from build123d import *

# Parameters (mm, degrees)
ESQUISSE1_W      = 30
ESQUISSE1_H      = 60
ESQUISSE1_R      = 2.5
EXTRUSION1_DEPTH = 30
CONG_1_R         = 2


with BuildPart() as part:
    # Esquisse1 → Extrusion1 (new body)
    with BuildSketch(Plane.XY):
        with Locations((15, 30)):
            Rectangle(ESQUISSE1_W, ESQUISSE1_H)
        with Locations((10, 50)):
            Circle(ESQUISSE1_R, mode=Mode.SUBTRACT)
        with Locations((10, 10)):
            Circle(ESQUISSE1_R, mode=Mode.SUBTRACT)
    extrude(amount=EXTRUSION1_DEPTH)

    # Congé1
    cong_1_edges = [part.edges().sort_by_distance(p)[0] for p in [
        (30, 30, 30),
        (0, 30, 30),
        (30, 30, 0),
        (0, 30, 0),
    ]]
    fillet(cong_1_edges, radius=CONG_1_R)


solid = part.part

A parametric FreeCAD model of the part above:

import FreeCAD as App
import Part
import Sketcher
from FreeCAD import Vector
Q = App.Units.Quantity


def edges_at(feature, points):
    """Names of the edges that pass closest to the given points."""
    edges = feature.Shape.Edges
    near = lambda p: min(range(len(edges)), key=lambda i: edges[i].distToShape(Part.Vertex(*p))[0])
    return sorted({f"Edge{near(p) + 1}" for p in points})


def add_polygon(sketch, points):
    """Adds a closed chain of lines whose ends are joined by coincident constraints."""
    first, n = sketch.GeometryCount, len(points)
    for a, b in zip(points, points[1:] + points[:1]):
        sketch.addGeometry(Part.LineSegment(App.Vector(*a, 0), App.Vector(*b, 0)), False)
    for i in range(n):
        sketch.addConstraint(Sketcher.Constraint("Coincident", first + i, 2, first + (i + 1) % n, 1))

doc = App.newDocument("Part")
body = doc.addObject("PartDesign::Body", "Body")

# Sketch on XY plane
sketch1 = doc.addObject("Sketcher::SketchObject", "Sketch")
body.addObject(sketch1)
sketch1.AttachmentSupport = (doc.XY_Plane, [""])
sketch1.MapMode = "FlatFace"
add_polygon(sketch1, [(0, 60), (0, 0), (30, 0), (30, 60)])  # lines 0-3
sketch1.addGeometry(Part.Circle(Vector(10, 10, 0), Vector(0, 0, 1), 2.5), False)  # 4
sketch1.addGeometry(Part.Circle(Vector(10, 50, 0), Vector(0, 0, 1), 2.5), False)  # 5
sketch1.addConstraint([
    Sketcher.Constraint("Vertical", 0),
    Sketcher.Constraint("Horizontal", 1),
    Sketcher.Constraint("Vertical", 2),
    Sketcher.Constraint("Horizontal", 3),
    Sketcher.Constraint("Coincident", 0, 2, -1, 1),
    Sketcher.Constraint("Equal", 4, 5),
    Sketcher.Constraint("Vertical", 4, 3, 5, 3),
    Sketcher.Constraint("Diameter", 4, Q("5 mm")),
    Sketcher.Constraint("DistanceX", 1, 1, 1, 2, Q("30 mm")),
    Sketcher.Constraint("DistanceY", 0, 2, 0, 1, Q("60 mm")),
    Sketcher.Constraint("DistanceX", -1, 1, 4, 3, Q("10 mm")),
    Sketcher.Constraint("DistanceY", -1, 1, 4, 3, Q("10 mm")),
    Sketcher.Constraint("DistanceY", -1, 1, 5, 3, Q("50 mm")),
])
pad1 = doc.addObject("PartDesign::Pad", "Pad")
body.addObject(pad1)
pad1.Profile = sketch1
pad1.Length = 30
doc.recompute()

fillet = doc.addObject("PartDesign::Fillet", "Fillet")
body.addObject(fillet)
fillet.Base = (pad1, edges_at(pad1, [
    (30, 30, 30),
    (0, 30, 30),
    (30, 30, 0),
    (0, 30, 0),
]))
fillet.Radius = 2

doc.recompute()
